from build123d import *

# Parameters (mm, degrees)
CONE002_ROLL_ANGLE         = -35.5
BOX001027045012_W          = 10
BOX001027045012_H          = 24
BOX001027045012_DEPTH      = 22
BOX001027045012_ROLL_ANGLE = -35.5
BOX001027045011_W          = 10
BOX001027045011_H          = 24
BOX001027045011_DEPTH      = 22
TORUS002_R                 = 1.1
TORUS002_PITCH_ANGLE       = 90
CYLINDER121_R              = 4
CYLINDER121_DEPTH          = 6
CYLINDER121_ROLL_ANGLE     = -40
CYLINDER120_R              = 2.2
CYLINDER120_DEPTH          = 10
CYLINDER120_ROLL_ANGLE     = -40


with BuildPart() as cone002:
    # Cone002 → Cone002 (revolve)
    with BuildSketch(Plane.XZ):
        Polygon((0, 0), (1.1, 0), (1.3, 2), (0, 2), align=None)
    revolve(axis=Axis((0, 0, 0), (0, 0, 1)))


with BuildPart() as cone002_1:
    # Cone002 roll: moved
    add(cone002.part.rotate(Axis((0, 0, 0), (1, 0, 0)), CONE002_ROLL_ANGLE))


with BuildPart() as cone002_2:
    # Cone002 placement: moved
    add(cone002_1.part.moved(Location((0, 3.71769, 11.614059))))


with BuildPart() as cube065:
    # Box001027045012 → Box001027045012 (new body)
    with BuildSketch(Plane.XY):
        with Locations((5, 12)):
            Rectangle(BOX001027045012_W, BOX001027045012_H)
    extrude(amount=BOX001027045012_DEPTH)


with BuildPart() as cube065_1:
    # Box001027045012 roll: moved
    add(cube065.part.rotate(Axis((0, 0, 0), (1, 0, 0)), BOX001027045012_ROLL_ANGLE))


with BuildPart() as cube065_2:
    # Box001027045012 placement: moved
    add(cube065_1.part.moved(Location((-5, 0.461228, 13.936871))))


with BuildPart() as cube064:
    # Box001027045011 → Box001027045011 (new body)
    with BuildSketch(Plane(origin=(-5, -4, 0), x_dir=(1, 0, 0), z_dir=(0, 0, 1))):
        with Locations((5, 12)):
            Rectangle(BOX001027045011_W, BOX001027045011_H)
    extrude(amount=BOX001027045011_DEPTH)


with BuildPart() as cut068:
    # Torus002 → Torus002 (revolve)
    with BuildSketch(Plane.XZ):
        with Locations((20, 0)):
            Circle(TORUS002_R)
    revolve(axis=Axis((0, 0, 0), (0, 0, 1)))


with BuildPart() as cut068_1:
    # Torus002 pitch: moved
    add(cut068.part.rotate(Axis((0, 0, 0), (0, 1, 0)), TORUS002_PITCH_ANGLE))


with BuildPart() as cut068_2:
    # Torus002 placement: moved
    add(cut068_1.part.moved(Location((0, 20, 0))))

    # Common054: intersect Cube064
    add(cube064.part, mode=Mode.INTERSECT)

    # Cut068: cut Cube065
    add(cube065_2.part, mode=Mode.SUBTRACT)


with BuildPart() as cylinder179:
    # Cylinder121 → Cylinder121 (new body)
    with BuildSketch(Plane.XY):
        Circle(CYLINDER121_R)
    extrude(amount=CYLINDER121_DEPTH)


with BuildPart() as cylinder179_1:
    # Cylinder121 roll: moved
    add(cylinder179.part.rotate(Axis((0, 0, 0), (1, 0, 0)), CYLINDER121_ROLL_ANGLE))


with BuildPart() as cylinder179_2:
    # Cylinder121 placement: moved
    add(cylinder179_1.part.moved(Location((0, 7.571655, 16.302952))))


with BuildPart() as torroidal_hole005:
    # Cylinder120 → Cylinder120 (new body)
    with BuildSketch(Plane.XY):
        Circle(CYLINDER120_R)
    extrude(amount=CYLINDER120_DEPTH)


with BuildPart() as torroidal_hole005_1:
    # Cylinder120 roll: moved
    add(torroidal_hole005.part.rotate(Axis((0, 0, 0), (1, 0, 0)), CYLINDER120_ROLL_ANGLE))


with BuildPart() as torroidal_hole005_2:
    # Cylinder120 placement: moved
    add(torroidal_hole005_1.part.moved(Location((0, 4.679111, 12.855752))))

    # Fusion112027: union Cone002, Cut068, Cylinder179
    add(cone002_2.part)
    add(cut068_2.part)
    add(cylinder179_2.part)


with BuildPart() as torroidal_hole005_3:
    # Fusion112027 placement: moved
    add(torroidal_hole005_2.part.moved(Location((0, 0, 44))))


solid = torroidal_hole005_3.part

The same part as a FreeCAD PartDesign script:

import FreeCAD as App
import Part
import Sketcher
from FreeCAD import Vector
Q = App.Units.Quantity


def add_polygon(sketch, points):
    """Adds a closed chain of lines whose ends are joined by coincident constraints."""
    first, n = sketch.GeometryCount, len(points)
    for a, b in zip(points, points[1:] + points[:1]):
        sketch.addGeometry(Part.LineSegment(App.Vector(*a, 0), App.Vector(*b, 0)), False)
    for i in range(n):
        sketch.addConstraint(Sketcher.Constraint("Coincident", first + i, 2, first + (i + 1) % n, 1))

doc = App.newDocument("Part")
body = doc.addObject("PartDesign::Body", "Body")

sketch1 = body.newObject("Sketcher::SketchObject", "Sketch")
sketch1.AttachmentSupport = (doc.getObject("XZ_Plane"), [""])
sketch1.MapMode = "FlatFace"
add_polygon(sketch1, [(0, 0), (1.1, 0), (1.3, 2), (0, 2)])
sketch1.addConstraint(Sketcher.Constraint("Horizontal", 0))
sketch1.addConstraint(Sketcher.Constraint("Horizontal", 2))
sketch1.addConstraint(Sketcher.Constraint("Vertical", 3))
sketch1.addConstraint(Sketcher.Constraint("Coincident", 3, 2, -1, 1))
sketch1.addConstraint(Sketcher.Constraint("DistanceY", 3, 2, 3, 1, Q("2 mm")))
sketch1.addConstraint(Sketcher.Constraint("DistanceX", 0, 1, 0, 2, Q("1.1 mm")))
sketch1.addConstraint(Sketcher.Constraint("DistanceX", 2, 2, 2, 1, Q("1.3 mm")))
revolution = body.newObject("PartDesign::Revolution", "Revolution")
revolution.Profile = sketch1
revolution.ReferenceAxis = (sketch1, ["V_Axis"])
revolution.Angle = 360
body2 = doc.addObject("PartDesign::Body", "Body001")
doc.recompute()

body.Placement = App.Placement(Vector(0, 0, 0), App.Rotation(Vector(1, 0, 0), 324.5))
boolean = body2.newObject("PartDesign::Boolean", "Boolean")
boolean.Type = "Fuse"
boolean.addObjects([body])
body3 = doc.addObject("PartDesign::Body", "Body002")
doc.recompute()

body2.Placement = App.Placement(Vector(0, 3.71769, 11.614059), App.Rotation(Vector(0, 0, 1), 0))
boolean2 = body3.newObject("PartDesign::Boolean", "Boolean001")
boolean2.Type = "Fuse"
boolean2.addObjects([body2])
body4 = doc.addObject("PartDesign::Body", "Body003")

sketch2 = body4.newObject("Sketcher::SketchObject", "Sketch001")
sketch2.AttachmentSupport = (doc.getObject("XY_Plane003"), [""])
sketch2.MapMode = "FlatFace"
add_polygon(sketch2, [(0, 24), (0, 0), (10, 0), (10, 24)])
sketch2.addConstraint(Sketcher.Constraint("Vertical", 0))
sketch2.addConstraint(Sketcher.Constraint("Horizontal", 1))
sketch2.addConstraint(Sketcher.Constraint("Vertical", 2))
sketch2.addConstraint(Sketcher.Constraint("Horizontal", 3))
sketch2.addConstraint(Sketcher.Constraint("Coincident", 0, 2, -1, 1))
sketch2.addConstraint(Sketcher.Constraint("DistanceX", 1, 1, 1, 2, Q("10 mm")))
sketch2.addConstraint(Sketcher.Constraint("DistanceY", 0, 2, 0, 1, Q("24 mm")))
pad1 = body4.newObject("PartDesign::Pad", "Pad")
pad1.Profile = sketch2
pad1.Length = 22
body5 = doc.addObject("PartDesign::Body", "Body004")
doc.recompute()

body4.Placement = App.Placement(Vector(0, 0, 0), App.Rotation(Vector(1, 0, 0), 324.5))
boolean3 = body5.newObject("PartDesign::Boolean", "Boolean002")
boolean3.Type = "Fuse"
boolean3.addObjects([body4])
body6 = doc.addObject("PartDesign::Body", "Body005")
doc.recompute()

body5.Placement = App.Placement(Vector(-5, 0.461228, 13.936871), App.Rotation(Vector(0, 0, 1), 0))
boolean4 = body6.newObject("PartDesign::Boolean", "Boolean003")
boolean4.Type = "Fuse"
boolean4.addObjects([body5])
body7 = doc.addObject("PartDesign::Body", "Body006")

sketch3 = body7.newObject("Sketcher::SketchObject", "Sketch002")
sketch3.AttachmentSupport = (doc.getObject("XY_Plane006"), [""])
sketch3.MapMode = "FlatFace"
add_polygon(sketch3, [(-5, 20), (-5, -4), (5, -4), (5, 20)])
sketch3.addConstraint(Sketcher.Constraint("Vertical", 0))
sketch3.addConstraint(Sketcher.Constraint("Horizontal", 1))
sketch3.addConstraint(Sketcher.Constraint("Vertical", 2))
sketch3.addConstraint(Sketcher.Constraint("Horizontal", 3))
sketch3.addConstraint(Sketcher.Constraint("DistanceX", 1, 1, 1, 2, Q("10 mm")))
sketch3.addConstraint(Sketcher.Constraint("DistanceY", 0, 2, 0, 1, Q("24 mm")))
sketch3.addConstraint(Sketcher.Constraint("DistanceX", 0, 2, -1, 1, Q("5 mm")))
sketch3.addConstraint(Sketcher.Constraint("DistanceY", 0, 2, -1, 1, Q("4 mm")))
pad2 = body7.newObject("PartDesign::Pad", "Pad001")
pad2.Profile = sketch3
pad2.Length = 22
body8 = doc.addObject("PartDesign::Body", "Body007")

sketch4 = body8.newObject("Sketcher::SketchObject", "Sketch003")
sketch4.AttachmentSupport = (doc.getObject("XZ_Plane007"), [""])
sketch4.MapMode = "FlatFace"
sketch4.addGeometry(Part.Circle(Vector(20, 0, 0), Vector(0, 0, 1), 1.1), False)
sketch4.addConstraint(Sketcher.Constraint("PointOnObject", 0, 3, -1))
sketch4.addConstraint(Sketcher.Constraint("Diameter", 0, Q("2.2 mm")))
sketch4.addConstraint(Sketcher.Constraint("DistanceX", -1, 1, 0, 3, Q("20 mm")))
revolution2 = body8.newObject("PartDesign::Revolution", "Revolution001")
revolution2.Profile = sketch4
revolution2.ReferenceAxis = (sketch4, ["V_Axis"])
revolution2.Angle = 360
body9 = doc.addObject("PartDesign::Body", "Body008")
doc.recompute()

body8.Placement = App.Placement(Vector(0, 0, 0), App.Rotation(Vector(0, 1, 0), 90))
boolean5 = body9.newObject("PartDesign::Boolean", "Boolean004")
boolean5.Type = "Fuse"
boolean5.addObjects([body8])
body10 = doc.addObject("PartDesign::Body", "Body009")
doc.recompute()

body9.Placement = App.Placement(Vector(0, 20, 0), App.Rotation(Vector(0, 0, 1), 0))
boolean6 = body10.newObject("PartDesign::Boolean", "Boolean005")
boolean6.Type = "Fuse"
boolean6.addObjects([body9])
doc.recompute()

boolean7 = body10.newObject("PartDesign::Boolean", "Boolean006")
boolean7.Type = "Common"
boolean7.addObjects([body7])
doc.recompute()

boolean8 = body10.newObject("PartDesign::Boolean", "Boolean007")
boolean8.Type = "Cut"
boolean8.addObjects([body6])
body11 = doc.addObject("PartDesign::Body", "Body010")

sketch5 = body11.newObject("Sketcher::SketchObject", "Sketch004")
sketch5.AttachmentSupport = (doc.getObject("XY_Plane010"), [""])
sketch5.MapMode = "FlatFace"
sketch5.addGeometry(Part.Circle(Vector(0, 0, 0), Vector(0, 0, 1), 4), False)
sketch5.addConstraint(Sketcher.Constraint("Coincident", 0, 3, -1, 1))
sketch5.addConstraint(Sketcher.Constraint("Diameter", 0, Q("8 mm")))
pad3 = body11.newObject("PartDesign::Pad", "Pad002")
pad3.Profile = sketch5
pad3.Length = 6
body12 = doc.addObject("PartDesign::Body", "Body011")
doc.recompute()

body11.Placement = App.Placement(Vector(0, 0, 0), App.Rotation(Vector(1, 0, 0), 320))
boolean9 = body12.newObject("PartDesign::Boolean", "Boolean008")
boolean9.Type = "Fuse"
boolean9.addObjects([body11])
body13 = doc.addObject("PartDesign::Body", "Body012")
doc.recompute()

body12.Placement = App.Placement(Vector(0, 7.571655, 16.302952), App.Rotation(Vector(0, 0, 1), 0))
boolean10 = body13.newObject("PartDesign::Boolean", "Boolean009")
boolean10.Type = "Fuse"
boolean10.addObjects([body12])
body14 = doc.addObject("PartDesign::Body", "Body013")

sketch6 = body14.newObject("Sketcher::SketchObject", "Sketch005")
sketch6.AttachmentSupport = (doc.getObject("XY_Plane013"), [""])
sketch6.MapMode = "FlatFace"
sketch6.addGeometry(Part.Circle(Vector(0, 0, 0), Vector(0, 0, 1), 2.2), False)
sketch6.addConstraint(Sketcher.Constraint("Coincident", 0, 3, -1, 1))
sketch6.addConstraint(Sketcher.Constraint("Diameter", 0, Q("4.4 mm")))
pad4 = body14.newObject("PartDesign::Pad", "Pad003")
pad4.Profile = sketch6
pad4.Length = 10
body15 = doc.addObject("PartDesign::Body", "Body014")
doc.recompute()

body14.Placement = App.Placement(Vector(0, 0, 0), App.Rotation(Vector(1, 0, 0), 320))
boolean11 = body15.newObject("PartDesign::Boolean", "Boolean010")
boolean11.Type = "Fuse"
boolean11.addObjects([body14])
body16 = doc.addObject("PartDesign::Body", "Body015")
doc.recompute()

body15.Placement = App.Placement(Vector(0, 4.679111, 12.855752), App.Rotation(Vector(0, 0, 1), 0))
boolean12 = body16.newObject("PartDesign::Boolean", "Boolean011")
boolean12.Type = "Fuse"
boolean12.addObjects([body15])
doc.recompute()

boolean13 = body16.newObject("PartDesign::Boolean", "Boolean012")
boolean13.Type = "Fuse"
boolean13.addObjects([body3])
doc.recompute()

boolean14 = body16.newObject("PartDesign::Boolean", "Boolean013")
boolean14.Type = "Fuse"
boolean14.addObjects([body10])
doc.recompute()

boolean15 = body16.newObject("PartDesign::Boolean", "Boolean014")
boolean15.Type = "Fuse"
boolean15.addObjects([body13])
body17 = doc.addObject("PartDesign::Body", "Body016")
doc.recompute()

body16.Placement = App.Placement(Vector(0, 0, 44), App.Rotation(Vector(0, 0, 1), 0))
boolean16 = body17.newObject("PartDesign::Boolean", "Boolean015")
boolean16.Type = "Fuse"
boolean16.addObjects([body16])

doc.recompute()
